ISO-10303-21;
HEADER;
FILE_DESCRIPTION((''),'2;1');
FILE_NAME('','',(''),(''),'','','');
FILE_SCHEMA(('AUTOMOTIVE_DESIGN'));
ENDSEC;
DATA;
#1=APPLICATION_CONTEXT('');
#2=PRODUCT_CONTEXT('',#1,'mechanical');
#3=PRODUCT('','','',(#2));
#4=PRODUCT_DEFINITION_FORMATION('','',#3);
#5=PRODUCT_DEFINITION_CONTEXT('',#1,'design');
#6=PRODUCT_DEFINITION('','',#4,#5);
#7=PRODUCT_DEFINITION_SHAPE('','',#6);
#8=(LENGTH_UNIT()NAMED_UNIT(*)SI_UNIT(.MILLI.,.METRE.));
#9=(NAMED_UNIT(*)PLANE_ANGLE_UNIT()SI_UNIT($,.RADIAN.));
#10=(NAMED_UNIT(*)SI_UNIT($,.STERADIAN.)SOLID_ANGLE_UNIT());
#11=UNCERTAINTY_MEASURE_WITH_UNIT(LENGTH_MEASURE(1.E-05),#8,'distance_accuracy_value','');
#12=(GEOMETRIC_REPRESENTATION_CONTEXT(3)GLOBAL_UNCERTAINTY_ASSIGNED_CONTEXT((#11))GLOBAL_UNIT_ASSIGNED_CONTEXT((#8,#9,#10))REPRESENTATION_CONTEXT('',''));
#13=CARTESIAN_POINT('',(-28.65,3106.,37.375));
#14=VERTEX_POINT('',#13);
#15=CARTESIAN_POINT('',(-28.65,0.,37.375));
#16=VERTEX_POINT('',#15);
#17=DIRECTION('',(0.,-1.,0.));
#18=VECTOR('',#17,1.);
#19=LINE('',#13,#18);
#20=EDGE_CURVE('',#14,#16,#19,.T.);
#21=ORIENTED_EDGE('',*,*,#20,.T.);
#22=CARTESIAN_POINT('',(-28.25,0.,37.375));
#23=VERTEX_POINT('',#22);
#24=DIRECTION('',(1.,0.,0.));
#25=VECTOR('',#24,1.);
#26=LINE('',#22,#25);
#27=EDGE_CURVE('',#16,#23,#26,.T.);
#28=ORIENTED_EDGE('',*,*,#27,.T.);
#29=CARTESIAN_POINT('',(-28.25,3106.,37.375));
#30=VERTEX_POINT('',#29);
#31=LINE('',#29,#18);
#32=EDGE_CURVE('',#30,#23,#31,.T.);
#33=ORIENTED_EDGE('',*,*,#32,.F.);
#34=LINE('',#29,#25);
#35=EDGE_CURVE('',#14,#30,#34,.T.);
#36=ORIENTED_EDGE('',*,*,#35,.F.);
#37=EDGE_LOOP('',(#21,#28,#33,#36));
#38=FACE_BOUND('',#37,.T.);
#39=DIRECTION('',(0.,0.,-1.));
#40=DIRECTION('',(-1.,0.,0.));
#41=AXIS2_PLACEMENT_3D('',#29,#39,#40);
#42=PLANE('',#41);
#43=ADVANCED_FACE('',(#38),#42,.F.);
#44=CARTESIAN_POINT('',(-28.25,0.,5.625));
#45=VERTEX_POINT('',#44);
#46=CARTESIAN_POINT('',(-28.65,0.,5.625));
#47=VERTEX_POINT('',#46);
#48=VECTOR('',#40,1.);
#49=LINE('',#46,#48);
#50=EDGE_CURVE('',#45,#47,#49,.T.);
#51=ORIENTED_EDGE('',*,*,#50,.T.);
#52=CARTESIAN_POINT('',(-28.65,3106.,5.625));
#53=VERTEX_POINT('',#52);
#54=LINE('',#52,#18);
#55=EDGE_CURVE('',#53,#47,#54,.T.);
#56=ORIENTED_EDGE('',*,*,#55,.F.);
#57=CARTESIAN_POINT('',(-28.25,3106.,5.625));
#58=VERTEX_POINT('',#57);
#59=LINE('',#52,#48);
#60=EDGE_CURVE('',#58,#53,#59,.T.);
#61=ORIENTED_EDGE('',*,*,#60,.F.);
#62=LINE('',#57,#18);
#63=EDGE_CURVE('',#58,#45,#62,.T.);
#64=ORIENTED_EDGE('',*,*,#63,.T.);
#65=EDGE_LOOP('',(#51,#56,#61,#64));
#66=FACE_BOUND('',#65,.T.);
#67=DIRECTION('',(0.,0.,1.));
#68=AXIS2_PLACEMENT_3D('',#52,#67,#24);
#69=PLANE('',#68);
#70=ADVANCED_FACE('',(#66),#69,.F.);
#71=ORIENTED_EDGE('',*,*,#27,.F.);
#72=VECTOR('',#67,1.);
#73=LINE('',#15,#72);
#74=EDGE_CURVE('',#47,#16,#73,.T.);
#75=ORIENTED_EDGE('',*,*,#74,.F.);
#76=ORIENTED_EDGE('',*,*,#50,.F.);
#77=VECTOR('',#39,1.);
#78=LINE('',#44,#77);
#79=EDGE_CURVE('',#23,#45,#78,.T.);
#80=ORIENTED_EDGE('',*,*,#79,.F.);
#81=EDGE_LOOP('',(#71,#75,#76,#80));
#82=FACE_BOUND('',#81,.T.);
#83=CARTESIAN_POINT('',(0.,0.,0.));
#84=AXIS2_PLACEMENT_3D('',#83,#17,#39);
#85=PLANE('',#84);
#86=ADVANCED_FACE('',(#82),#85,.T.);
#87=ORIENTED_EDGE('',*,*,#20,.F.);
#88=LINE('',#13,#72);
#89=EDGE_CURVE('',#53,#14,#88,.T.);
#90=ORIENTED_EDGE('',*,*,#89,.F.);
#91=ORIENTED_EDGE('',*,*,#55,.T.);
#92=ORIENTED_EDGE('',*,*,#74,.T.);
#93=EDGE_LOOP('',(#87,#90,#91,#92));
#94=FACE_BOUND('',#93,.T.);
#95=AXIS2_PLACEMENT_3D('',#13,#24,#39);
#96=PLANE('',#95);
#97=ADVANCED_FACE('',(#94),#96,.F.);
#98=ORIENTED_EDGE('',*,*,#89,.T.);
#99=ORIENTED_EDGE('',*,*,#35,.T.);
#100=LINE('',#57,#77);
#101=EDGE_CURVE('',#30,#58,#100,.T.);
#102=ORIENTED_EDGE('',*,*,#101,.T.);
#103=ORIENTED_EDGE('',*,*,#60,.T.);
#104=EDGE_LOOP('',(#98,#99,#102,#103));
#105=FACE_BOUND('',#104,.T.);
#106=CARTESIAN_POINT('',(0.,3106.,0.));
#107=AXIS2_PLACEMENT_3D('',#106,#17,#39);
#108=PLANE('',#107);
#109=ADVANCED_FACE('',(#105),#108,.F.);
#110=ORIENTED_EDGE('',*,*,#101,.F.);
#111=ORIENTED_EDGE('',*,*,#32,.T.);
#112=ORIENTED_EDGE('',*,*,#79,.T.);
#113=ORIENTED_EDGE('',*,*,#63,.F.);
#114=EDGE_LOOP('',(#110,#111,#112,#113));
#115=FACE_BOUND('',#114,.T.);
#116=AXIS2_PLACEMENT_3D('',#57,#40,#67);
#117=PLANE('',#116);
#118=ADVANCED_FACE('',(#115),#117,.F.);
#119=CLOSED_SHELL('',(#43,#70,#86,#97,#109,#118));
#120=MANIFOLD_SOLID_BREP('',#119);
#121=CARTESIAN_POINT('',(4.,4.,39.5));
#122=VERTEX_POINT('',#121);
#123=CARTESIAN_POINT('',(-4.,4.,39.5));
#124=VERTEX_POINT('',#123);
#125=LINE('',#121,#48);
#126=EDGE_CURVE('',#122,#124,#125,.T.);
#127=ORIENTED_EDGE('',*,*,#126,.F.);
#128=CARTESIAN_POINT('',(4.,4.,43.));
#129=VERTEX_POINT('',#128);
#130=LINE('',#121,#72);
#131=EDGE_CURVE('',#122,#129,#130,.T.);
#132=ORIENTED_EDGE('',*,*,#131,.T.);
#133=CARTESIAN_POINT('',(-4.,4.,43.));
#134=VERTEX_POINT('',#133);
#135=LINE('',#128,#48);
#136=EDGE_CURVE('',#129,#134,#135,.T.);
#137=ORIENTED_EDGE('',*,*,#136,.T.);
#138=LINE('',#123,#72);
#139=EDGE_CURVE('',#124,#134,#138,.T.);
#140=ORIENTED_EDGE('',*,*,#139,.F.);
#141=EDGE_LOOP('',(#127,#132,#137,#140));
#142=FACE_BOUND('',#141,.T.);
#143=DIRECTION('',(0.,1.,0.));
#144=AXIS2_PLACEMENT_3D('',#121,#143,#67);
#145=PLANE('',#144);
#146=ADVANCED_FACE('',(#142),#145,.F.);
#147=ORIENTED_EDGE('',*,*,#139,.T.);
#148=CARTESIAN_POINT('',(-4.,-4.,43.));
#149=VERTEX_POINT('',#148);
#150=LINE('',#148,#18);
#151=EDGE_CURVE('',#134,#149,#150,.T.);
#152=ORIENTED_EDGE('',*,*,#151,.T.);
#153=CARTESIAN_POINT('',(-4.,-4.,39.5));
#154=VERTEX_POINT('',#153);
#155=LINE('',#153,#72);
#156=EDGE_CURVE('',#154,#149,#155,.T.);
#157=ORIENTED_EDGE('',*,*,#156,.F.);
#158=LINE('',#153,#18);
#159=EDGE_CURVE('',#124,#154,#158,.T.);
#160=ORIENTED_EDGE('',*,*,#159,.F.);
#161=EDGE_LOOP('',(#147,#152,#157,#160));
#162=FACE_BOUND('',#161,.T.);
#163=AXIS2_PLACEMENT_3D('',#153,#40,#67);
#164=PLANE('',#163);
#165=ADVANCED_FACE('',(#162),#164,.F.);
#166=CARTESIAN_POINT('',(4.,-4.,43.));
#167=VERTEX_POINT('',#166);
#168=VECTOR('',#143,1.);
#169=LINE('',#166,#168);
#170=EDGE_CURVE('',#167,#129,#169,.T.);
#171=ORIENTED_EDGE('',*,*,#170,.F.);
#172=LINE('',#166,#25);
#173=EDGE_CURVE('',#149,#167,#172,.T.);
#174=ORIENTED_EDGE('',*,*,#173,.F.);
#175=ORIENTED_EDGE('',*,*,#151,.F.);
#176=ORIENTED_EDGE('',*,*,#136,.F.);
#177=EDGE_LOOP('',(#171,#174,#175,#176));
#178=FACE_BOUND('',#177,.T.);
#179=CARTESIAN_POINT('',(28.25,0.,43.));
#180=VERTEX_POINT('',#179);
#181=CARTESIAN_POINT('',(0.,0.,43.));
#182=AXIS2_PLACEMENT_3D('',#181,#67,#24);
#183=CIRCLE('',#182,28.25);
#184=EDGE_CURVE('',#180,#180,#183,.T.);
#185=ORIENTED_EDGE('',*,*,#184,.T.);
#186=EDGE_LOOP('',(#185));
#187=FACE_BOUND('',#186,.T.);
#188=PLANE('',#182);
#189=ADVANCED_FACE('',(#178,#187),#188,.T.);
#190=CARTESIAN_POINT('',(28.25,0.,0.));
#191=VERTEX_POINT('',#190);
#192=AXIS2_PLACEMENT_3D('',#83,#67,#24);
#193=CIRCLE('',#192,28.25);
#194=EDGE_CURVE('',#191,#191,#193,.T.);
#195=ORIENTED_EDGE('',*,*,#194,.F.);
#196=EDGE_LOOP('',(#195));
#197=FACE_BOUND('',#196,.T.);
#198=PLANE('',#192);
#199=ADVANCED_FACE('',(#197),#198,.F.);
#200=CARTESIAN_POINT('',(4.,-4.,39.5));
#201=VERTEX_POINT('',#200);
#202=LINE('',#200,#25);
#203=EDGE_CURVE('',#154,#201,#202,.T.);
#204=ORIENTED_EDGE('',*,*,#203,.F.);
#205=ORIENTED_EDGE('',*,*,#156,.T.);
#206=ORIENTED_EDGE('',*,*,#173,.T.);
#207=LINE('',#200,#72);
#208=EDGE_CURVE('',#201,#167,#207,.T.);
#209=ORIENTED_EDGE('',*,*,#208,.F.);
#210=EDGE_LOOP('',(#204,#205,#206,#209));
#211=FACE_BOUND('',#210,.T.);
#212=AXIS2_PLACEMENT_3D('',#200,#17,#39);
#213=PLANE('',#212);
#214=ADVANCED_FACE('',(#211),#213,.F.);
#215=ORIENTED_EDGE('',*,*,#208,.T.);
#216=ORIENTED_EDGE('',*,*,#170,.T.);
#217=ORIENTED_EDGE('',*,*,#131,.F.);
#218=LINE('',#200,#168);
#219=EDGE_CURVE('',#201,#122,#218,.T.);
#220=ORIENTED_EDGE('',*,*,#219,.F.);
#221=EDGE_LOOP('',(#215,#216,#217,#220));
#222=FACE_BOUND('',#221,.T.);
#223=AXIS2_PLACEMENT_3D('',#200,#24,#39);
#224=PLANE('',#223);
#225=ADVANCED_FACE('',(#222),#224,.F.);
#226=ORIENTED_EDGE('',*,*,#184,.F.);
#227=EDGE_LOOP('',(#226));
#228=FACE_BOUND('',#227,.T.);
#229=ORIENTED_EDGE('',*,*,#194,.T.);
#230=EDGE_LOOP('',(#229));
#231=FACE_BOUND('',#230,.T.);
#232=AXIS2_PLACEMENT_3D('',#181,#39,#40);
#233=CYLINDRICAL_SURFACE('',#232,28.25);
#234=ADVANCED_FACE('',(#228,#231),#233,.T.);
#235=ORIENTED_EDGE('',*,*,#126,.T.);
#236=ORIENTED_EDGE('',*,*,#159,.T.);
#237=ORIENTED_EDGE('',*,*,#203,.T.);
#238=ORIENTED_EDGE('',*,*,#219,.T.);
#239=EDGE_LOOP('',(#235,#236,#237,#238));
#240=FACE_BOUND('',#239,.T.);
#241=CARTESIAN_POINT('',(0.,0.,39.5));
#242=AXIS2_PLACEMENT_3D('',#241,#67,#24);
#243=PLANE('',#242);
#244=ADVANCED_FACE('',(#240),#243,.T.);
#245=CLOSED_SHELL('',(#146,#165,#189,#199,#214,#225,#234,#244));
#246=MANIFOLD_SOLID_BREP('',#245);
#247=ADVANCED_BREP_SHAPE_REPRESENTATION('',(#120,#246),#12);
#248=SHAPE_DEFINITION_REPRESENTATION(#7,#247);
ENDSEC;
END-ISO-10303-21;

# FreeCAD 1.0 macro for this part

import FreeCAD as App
import Part
import Sketcher
Q = App.Units.Quantity


def add_polygon(sketch, points):
    """Adds a closed chain of lines whose ends are joined by coincident constraints."""
    first, n = sketch.GeometryCount, len(points)
    for a, b in zip(points, points[1:] + points[:1]):
        sketch.addGeometry(Part.LineSegment(App.Vector(*a, 0), App.Vector(*b, 0)), False)
    for i in range(n):
        sketch.addConstraint(Sketcher.Constraint("Coincident", first + i, 2, first + (i + 1) % n, 1))

doc = App.newDocument("Part")
body = doc.addObject("PartDesign::Body", "Body")

sketch1 = body.newObject("Sketcher::SketchObject", "Sketch")
sketch1.AttachmentSupport = (doc.getObject("XY_Plane"), [""])
sketch1.MapMode = "FlatFace"
sketch1.addGeometry(Part.Circle(App.Vector(0, 0, 0), App.Vector(0, 0, 1), 28.25), False)
sketch1.addConstraint([
    Sketcher.Constraint("Coincident", 0, 3, -1, 1),
    Sketcher.Constraint("Diameter", 0, Q("56.5 mm")),
])
pad1 = body.newObject("PartDesign::Pad", "Pad")
pad1.Profile = sketch1
pad1.Length = 43

sketch2 = body.newObject("Sketcher::SketchObject", "Sketch001")
sketch2.AttachmentSupport = (doc.getObject("XY_Plane"), [""])
sketch2.MapMode = "FlatFace"
sketch2.AttachmentOffset = App.Placement(App.Vector(0, 0, 43), App.Rotation())
add_polygon(sketch2, [(-4, 4), (-4, -4), (4, -4), (4, 4)])
sketch2.addConstraint([
    Sketcher.Constraint("Vertical", 0),
    Sketcher.Constraint("Horizontal", 1),
    Sketcher.Constraint("Vertical", 2),
    Sketcher.Constraint("Horizontal", 3),
    Sketcher.Constraint("Symmetric", 0, 2, 2, 2, -1, 1),
    Sketcher.Constraint("Equal", 3, 0),
    Sketcher.Constraint("DistanceX", 1, 1, 1, 2, Q("8 mm")),
])
pocket1 = body.newObject("PartDesign::Pocket", "Pocket")
pocket1.Profile = sketch2
pocket1.Length = 3.5
body2 = doc.addObject("PartDesign::Body", "Body001")

sketch3 = body2.newObject("Sketcher::SketchObject", "Sketch002")
sketch3.AttachmentSupport = (doc.getObject("XZ_Plane001"), [""])
sketch3.MapMode = "FlatFace"
add_polygon(sketch3, [(-28.65, 5.625), (-28.65, 37.375), (-28.25, 37.375), (-28.25, 5.625)])
sketch3.addConstraint([
    Sketcher.Constraint("Vertical", 0),
    Sketcher.Constraint("Horizontal", 1),
    Sketcher.Constraint("Vertical", 2),
    Sketcher.Constraint("Horizontal", 3),
    Sketcher.Constraint("DistanceX", 1, 1, 1, 2, Q("0.4 mm")),
    Sketcher.Constraint("DistanceY", 0, 1, 0, 2, Q("31.75 mm")),
    Sketcher.Constraint("DistanceX", 0, 2, -1, 1, Q("28.65 mm")),
    Sketcher.Constraint("DistanceY", -1, 1, 0, 2, Q("37.375 mm")),
])
pad2 = body2.newObject("PartDesign::Pad", "Pad001")
pad2.Profile = sketch3
pad2.Length = 3106
pad2.Reversed = True

doc.recompute()
